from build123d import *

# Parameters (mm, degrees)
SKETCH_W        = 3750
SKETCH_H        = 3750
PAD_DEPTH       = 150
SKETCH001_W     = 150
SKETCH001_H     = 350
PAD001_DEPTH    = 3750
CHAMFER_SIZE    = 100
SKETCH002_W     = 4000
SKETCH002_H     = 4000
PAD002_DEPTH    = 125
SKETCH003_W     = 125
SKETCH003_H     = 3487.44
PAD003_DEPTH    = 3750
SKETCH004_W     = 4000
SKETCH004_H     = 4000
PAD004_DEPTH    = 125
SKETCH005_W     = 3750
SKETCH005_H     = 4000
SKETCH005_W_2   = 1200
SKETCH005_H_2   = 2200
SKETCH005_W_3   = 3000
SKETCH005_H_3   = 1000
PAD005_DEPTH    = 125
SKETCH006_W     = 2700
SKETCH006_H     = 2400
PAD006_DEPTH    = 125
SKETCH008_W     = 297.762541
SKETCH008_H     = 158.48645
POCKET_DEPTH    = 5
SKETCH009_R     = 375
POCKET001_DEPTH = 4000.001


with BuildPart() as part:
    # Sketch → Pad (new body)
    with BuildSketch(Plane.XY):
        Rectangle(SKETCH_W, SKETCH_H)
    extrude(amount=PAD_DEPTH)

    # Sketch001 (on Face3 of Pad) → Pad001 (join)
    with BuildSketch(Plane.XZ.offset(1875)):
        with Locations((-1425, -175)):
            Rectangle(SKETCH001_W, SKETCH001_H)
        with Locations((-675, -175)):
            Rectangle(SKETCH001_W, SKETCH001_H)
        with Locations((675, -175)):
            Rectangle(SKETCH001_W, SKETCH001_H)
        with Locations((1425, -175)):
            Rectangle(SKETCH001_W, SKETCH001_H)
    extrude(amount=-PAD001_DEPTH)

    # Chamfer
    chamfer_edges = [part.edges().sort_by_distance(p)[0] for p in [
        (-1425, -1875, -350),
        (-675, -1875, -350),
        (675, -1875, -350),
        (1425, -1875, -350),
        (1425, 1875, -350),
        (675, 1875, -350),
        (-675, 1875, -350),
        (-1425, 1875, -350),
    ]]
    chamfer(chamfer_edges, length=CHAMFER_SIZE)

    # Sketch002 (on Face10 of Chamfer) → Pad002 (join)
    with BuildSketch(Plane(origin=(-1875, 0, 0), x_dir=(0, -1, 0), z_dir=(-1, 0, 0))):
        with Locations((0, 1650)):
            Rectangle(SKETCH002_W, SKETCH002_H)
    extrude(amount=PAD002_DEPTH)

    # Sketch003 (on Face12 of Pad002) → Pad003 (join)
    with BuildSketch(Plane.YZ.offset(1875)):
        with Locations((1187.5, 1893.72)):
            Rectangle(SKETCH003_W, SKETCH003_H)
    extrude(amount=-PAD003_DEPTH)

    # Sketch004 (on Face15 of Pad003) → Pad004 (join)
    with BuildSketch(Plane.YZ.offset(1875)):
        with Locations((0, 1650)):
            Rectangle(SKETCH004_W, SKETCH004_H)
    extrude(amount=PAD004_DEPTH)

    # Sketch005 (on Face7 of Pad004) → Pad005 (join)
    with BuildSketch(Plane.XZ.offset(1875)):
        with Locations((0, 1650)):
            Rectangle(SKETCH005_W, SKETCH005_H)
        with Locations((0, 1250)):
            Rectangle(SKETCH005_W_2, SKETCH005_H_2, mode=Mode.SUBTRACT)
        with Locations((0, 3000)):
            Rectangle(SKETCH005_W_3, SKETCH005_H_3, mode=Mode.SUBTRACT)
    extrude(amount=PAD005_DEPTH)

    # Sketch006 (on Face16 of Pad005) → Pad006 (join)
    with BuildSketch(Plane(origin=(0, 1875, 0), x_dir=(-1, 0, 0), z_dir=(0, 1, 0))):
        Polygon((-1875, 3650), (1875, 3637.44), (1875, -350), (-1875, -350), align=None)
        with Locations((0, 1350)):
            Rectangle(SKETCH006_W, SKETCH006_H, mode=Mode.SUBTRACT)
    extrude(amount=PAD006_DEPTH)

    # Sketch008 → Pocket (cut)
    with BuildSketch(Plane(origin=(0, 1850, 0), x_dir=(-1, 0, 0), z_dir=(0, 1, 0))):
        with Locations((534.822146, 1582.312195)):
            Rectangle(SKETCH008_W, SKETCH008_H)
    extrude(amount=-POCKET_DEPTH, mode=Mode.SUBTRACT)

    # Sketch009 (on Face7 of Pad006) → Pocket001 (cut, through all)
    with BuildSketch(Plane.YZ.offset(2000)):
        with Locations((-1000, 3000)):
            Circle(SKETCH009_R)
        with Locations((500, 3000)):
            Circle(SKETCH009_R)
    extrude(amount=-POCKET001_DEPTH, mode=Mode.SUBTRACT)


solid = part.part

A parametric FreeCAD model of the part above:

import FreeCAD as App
import Part
import Sketcher


def edges_at(feature, points):
    """Names of the edges that pass closest to the given points."""
    edges = feature.Shape.Edges
    near = lambda p: min(range(len(edges)), key=lambda i: edges[i].distToShape(Part.Vertex(*p))[0])
    return sorted({f"Edge{near(p) + 1}" for p in points})


def add_polygon(sketch, points):
    """Adds a closed chain of lines whose ends are joined by coincident constraints."""
    first, n = sketch.GeometryCount, len(points)
    for a, b in zip(points, points[1:] + points[:1]):
        sketch.addGeometry(Part.LineSegment(App.Vector(*a, 0), App.Vector(*b, 0)), False)
    for i in range(n):
        sketch.addConstraint(Sketcher.Constraint("Coincident", first + i, 2, first + (i + 1) % n, 1))

doc = App.newDocument("Part")
body = doc.addObject("PartDesign::Body", "Body")

# Sketch on XY plane
sketch1 = body.newObject("Sketcher::SketchObject", "Sketch")
sketch1.AttachmentSupport = (doc.getObject("XY_Plane"), [""])
sketch1.MapMode = "FlatFace"
add_polygon(sketch1, [(-1875, 1875), (-1875, -1875), (1875, -1875), (1875, 1875)])  # lines 0-3
sketch1.addConstraint(Sketcher.Constraint("Vertical", 0))
sketch1.addConstraint(Sketcher.Constraint("Horizontal", 1))
sketch1.addConstraint(Sketcher.Constraint("Vertical", 2))
sketch1.addConstraint(Sketcher.Constraint("Horizontal", 3))
sketch1.addConstraint(Sketcher.Constraint("Symmetric", 0, 2, 2, 2, -1, 1))
sketch1.addConstraint(Sketcher.Constraint("Equal", 3, 0))
sketch1.addConstraint(Sketcher.Constraint("DistanceX", 1, 1, 1, 2, 3750.0))
pad1 = body.newObject("PartDesign::Pad", "Pad")
pad1.Profile = sketch1
pad1.Length = 150

# Sketch on XZ plane
sketch2 = body.newObject("Sketcher::SketchObject", "Sketch001")
sketch2.AttachmentSupport = (doc.getObject("XZ_Plane"), [""])
sketch2.MapMode = "FlatFace"
sketch2.AttachmentOffset = App.Placement(App.Vector(0, 0, 1875), App.Rotation())
add_polygon(sketch2, [(-1500, 0), (-1500, -350), (-1350, -350), (-1350, 0)])  # lines 0-3
add_polygon(sketch2, [(-750, 0), (-750, -350), (-600, -350), (-600, 0)])  # lines 4-7
add_polygon(sketch2, [(600, 0), (600, -350), (750, -350), (750, 0)])  # lines 8-11
add_polygon(sketch2, [(1350, 0), (1350, -350), (1500, -350), (1500, 0)])  # lines 12-15
sketch2.addConstraint(Sketcher.Constraint("Vertical", 0))
sketch2.addConstraint(Sketcher.Constraint("Horizontal", 1))
sketch2.addConstraint(Sketcher.Constraint("Vertical", 2))
sketch2.addConstraint(Sketcher.Constraint("Horizontal", 3))
sketch2.addConstraint(Sketcher.Constraint("Vertical", 4))
sketch2.addConstraint(Sketcher.Constraint("Horizontal", 5))
sketch2.addConstraint(Sketcher.Constraint("Vertical", 6))
sketch2.addConstraint(Sketcher.Constraint("Horizontal", 7))
sketch2.addConstraint(Sketcher.Constraint("Vertical", 8))
sketch2.addConstraint(Sketcher.Constraint("Horizontal", 9))
sketch2.addConstraint(Sketcher.Constraint("Vertical", 10))
sketch2.addConstraint(Sketcher.Constraint("Horizontal", 11))
sketch2.addConstraint(Sketcher.Constraint("Vertical", 12))
sketch2.addConstraint(Sketcher.Constraint("Horizontal", 13))
sketch2.addConstraint(Sketcher.Constraint("Vertical", 14))
sketch2.addConstraint(Sketcher.Constraint("Horizontal", 15))
sketch2.addConstraint(Sketcher.Constraint("Symmetric", 7, 2, 10, 2, -1, 1))
sketch2.addConstraint(Sketcher.Constraint("Symmetric", 3, 2, 14, 2, -1, 1))
sketch2.addConstraint(Sketcher.Constraint("Symmetric", 5, 2, 8, 2, -2))
sketch2.addConstraint(Sketcher.Constraint("Symmetric", 1, 2, 12, 2, -2))
sketch2.addConstraint(Sketcher.Constraint("PointOnObject", 2, 2, -1))
sketch2.addConstraint(Sketcher.Constraint("PointOnObject", 6, 2, -1))
sketch2.addConstraint(Sketcher.Constraint("Horizontal", 1, 2, 4, 2))
sketch2.addConstraint(Sketcher.Constraint("Equal", 3, 5))
sketch2.addConstraint(Sketcher.Constraint("DistanceX", 1, 1, 1, 2, 150.0))
sketch2.addConstraint(Sketcher.Constraint("DistanceY", 0, 2, 0, 1, 350.0))
sketch2.addConstraint(Sketcher.Constraint("DistanceX", 0, 2, -1, 1, 1500.0))
sketch2.addConstraint(Sketcher.Constraint("DistanceX", 4, 2, -1, 1, 750.0))
pad2 = body.newObject("PartDesign::Pad", "Pad001")
pad2.Profile = sketch2
pad2.Length = 3750
pad2.Reversed = True
doc.recompute()

chamfer = body.newObject("PartDesign::Chamfer", "Chamfer")
chamfer.Base = (pad2, edges_at(pad2, [
    (-1425, -1875, -350),
    (-675, -1875, -350),
    (675, -1875, -350),
    (1425, -1875, -350),
    (1425, 1875, -350),
    (675, 1875, -350),
    (-675, 1875, -350),
    (-1425, 1875, -350),
]))
chamfer.Size = 100

# Sketch on YZ plane
sketch3 = body.newObject("Sketcher::SketchObject", "Sketch002")
sketch3.AttachmentSupport = (doc.getObject("YZ_Plane"), [""])
sketch3.MapMode = "FlatFace"
sketch3.AttachmentOffset = App.Placement(App.Vector(0, 0, -1875), App.Rotation())
add_polygon(sketch3, [(2000, 3650), (2000, -350), (-2000, -350), (-2000, 3650)])  # lines 0-3
sketch3.addConstraint(Sketcher.Constraint("Vertical", 0))
sketch3.addConstraint(Sketcher.Constraint("Horizontal", 1))
sketch3.addConstraint(Sketcher.Constraint("Vertical", 2))
sketch3.addConstraint(Sketcher.Constraint("Horizontal", 3))
sketch3.addConstraint(Sketcher.Constraint("Equal", 3, 0))
sketch3.addConstraint(Sketcher.Constraint("DistanceX", 1, 2, 1, 1, 4000.0))
sketch3.addConstraint(Sketcher.Constraint("DistanceX", -1, 1, 0, 2, 2000.0))
sketch3.addConstraint(Sketcher.Constraint("DistanceY", 0, 2, -1, 1, 350.0))
pad3 = body.newObject("PartDesign::Pad", "Pad002")
pad3.Profile = sketch3
pad3.Length = 125
pad3.Reversed = True

# Sketch on YZ plane
sketch4 = body.newObject("Sketcher::SketchObject", "Sketch003")
sketch4.AttachmentSupport = (doc.getObject("YZ_Plane"), [""])
sketch4.MapMode = "FlatFace"
sketch4.AttachmentOffset = App.Placement(App.Vector(0, 0, 1875), App.Rotation())
add_polygon(sketch4, [(1125, 3637.44), (1125, 150), (1250, 150), (1250, 3637.44)])  # lines 0-3
sketch4.addConstraint(Sketcher.Constraint("Vertical", 0))
sketch4.addConstraint(Sketcher.Constraint("Horizontal", 1))
sketch4.addConstraint(Sketcher.Constraint("Vertical", 2))
sketch4.addConstraint(Sketcher.Constraint("Horizontal", 3))
sketch4.addConstraint(Sketcher.Constraint("DistanceX", 1, 1, 1, 2, 125.0))
sketch4.addConstraint(Sketcher.Constraint("DistanceX", -1, 1, 0, 2, 1125.0))
sketch4.addConstraint(Sketcher.Constraint("DistanceY", -1, 1, 0, 2, 150.0))
sketch4.addConstraint(Sketcher.Constraint("DistanceY", 0, 2, 0, 1, 3487.44))
pad4 = body.newObject("PartDesign::Pad", "Pad003")
pad4.Profile = sketch4
pad4.Length = 3750
pad4.Reversed = True

# Sketch on YZ plane
sketch5 = body.newObject("Sketcher::SketchObject", "Sketch004")
sketch5.AttachmentSupport = (doc.getObject("YZ_Plane"), [""])
sketch5.MapMode = "FlatFace"
sketch5.AttachmentOffset = App.Placement(App.Vector(0, 0, 1875), App.Rotation())
add_polygon(sketch5, [(-2000, 3650), (-2000, -350), (2000, -350), (2000, 3650)])  # lines 0-3
sketch5.addConstraint(Sketcher.Constraint("Vertical", 0))
sketch5.addConstraint(Sketcher.Constraint("Horizontal", 1))
sketch5.addConstraint(Sketcher.Constraint("Vertical", 2))
sketch5.addConstraint(Sketcher.Constraint("Horizontal", 3))
sketch5.addConstraint(Sketcher.Constraint("Equal", 3, 0))
sketch5.addConstraint(Sketcher.Constraint("DistanceX", 1, 1, 1, 2, 4000.0))
sketch5.addConstraint(Sketcher.Constraint("DistanceX", 0, 2, -1, 1, 2000.0))
sketch5.addConstraint(Sketcher.Constraint("DistanceY", 0, 2, -1, 1, 350.0))
pad5 = body.newObject("PartDesign::Pad", "Pad004")
pad5.Profile = sketch5
pad5.Length = 125

# Sketch on XZ plane
sketch6 = body.newObject("Sketcher::SketchObject", "Sketch005")
sketch6.AttachmentSupport = (doc.getObject("XZ_Plane"), [""])
sketch6.MapMode = "FlatFace"
sketch6.AttachmentOffset = App.Placement(App.Vector(0, 0, 1875), App.Rotation())
add_polygon(sketch6, [(-1875, 3650), (-1875, -350), (1875, -350), (1875, 3650)])  # lines 0-3
add_polygon(sketch6, [(600, 150), (-600, 150), (-600, 2350), (600, 2350)])  # lines 4-7
add_polygon(sketch6, [(1500, 2500), (-1500, 2500), (-1500, 3500), (1500, 3500)])  # lines 8-11
sketch6.addConstraint(Sketcher.Constraint("Vertical", 0))
sketch6.addConstraint(Sketcher.Constraint("Horizontal", 1))
sketch6.addConstraint(Sketcher.Constraint("Vertical", 2))
sketch6.addConstraint(Sketcher.Constraint("Horizontal", 3))
sketch6.addConstraint(Sketcher.Constraint("Horizontal", 4))
sketch6.addConstraint(Sketcher.Constraint("Vertical", 5))
sketch6.addConstraint(Sketcher.Constraint("Horizontal", 6))
sketch6.addConstraint(Sketcher.Constraint("Vertical", 7))
sketch6.addConstraint(Sketcher.Constraint("Horizontal", 8))
sketch6.addConstraint(Sketcher.Constraint("Vertical", 9))
sketch6.addConstraint(Sketcher.Constraint("Horizontal", 10))
sketch6.addConstraint(Sketcher.Constraint("Vertical", 11))
sketch6.addConstraint(Sketcher.Constraint("DistanceX", 1, 1, 1, 2, 3750.0))
sketch6.addConstraint(Sketcher.Constraint("DistanceX", 4, 2, 4, 1, 1200.0))
sketch6.addConstraint(Sketcher.Constraint("DistanceX", 8, 2, 8, 1, 3000.0))
sketch6.addConstraint(Sketcher.Constraint("DistanceY", 0, 2, 0, 1, 4000.0))
sketch6.addConstraint(Sketcher.Constraint("DistanceY", 5, 1, 5, 2, 2200.0))
sketch6.addConstraint(Sketcher.Constraint("DistanceY", 9, 1, 9, 2, 1000.0))
sketch6.addConstraint(Sketcher.Constraint("DistanceX", 0, 2, -1, 1, 1875.0))
sketch6.addConstraint(Sketcher.Constraint("DistanceY", 0, 2, -1, 1, 350.0))
sketch6.addConstraint(Sketcher.Constraint("DistanceX", 4, 2, -1, 1, 600.0))
sketch6.addConstraint(Sketcher.Constraint("DistanceY", -1, 1, 4, 2, 150.0))
sketch6.addConstraint(Sketcher.Constraint("DistanceX", 8, 2, -1, 1, 1500.0))
sketch6.addConstraint(Sketcher.Constraint("DistanceY", -1, 1, 8, 2, 2500.0))
pad6 = body.newObject("PartDesign::Pad", "Pad005")
pad6.Profile = sketch6
pad6.Length = 125

# Sketch on XZ plane
sketch7 = body.newObject("Sketcher::SketchObject", "Sketch006")
sketch7.AttachmentSupport = (doc.getObject("XZ_Plane"), [""])
sketch7.MapMode = "FlatFace"
sketch7.AttachmentOffset = App.Placement(App.Vector(0, 0, -1875), App.Rotation())
add_polygon(sketch7, [(-1875, 3637.44), (1875, 3650), (1875, -350), (-1875, -350)])  # lines 0-3
add_polygon(sketch7, [(1350, 150), (1350, 2550), (-1350, 2550), (-1350, 150)])  # lines 4-7
sketch7.addConstraint(Sketcher.Constraint("Vertical", 1))
sketch7.addConstraint(Sketcher.Constraint("Horizontal", 2))
sketch7.addConstraint(Sketcher.Constraint("Vertical", 3))
sketch7.addConstraint(Sketcher.Constraint("Vertical", 4))
sketch7.addConstraint(Sketcher.Constraint("Horizontal", 5))
sketch7.addConstraint(Sketcher.Constraint("Vertical", 6))
sketch7.addConstraint(Sketcher.Constraint("Horizontal", 7))
sketch7.addConstraint(Sketcher.Constraint("DistanceX", 2, 2, 2, 1, 3750.0))
sketch7.addConstraint(Sketcher.Constraint("DistanceX", 5, 2, 5, 1, 2700.0))
sketch7.addConstraint(Sketcher.Constraint("DistanceY", 1, 2, 1, 1, 4000.0))
sketch7.addConstraint(Sketcher.Constraint("DistanceY", 4, 1, 4, 2, 2400.0))
sketch7.addConstraint(Sketcher.Constraint("DistanceX", -1, 1, 0, 2, 1875.0))
sketch7.addConstraint(Sketcher.Constraint("DistanceY", -1, 1, 0, 2, 3650.0))
sketch7.addConstraint(Sketcher.Constraint("DistanceX", -1, 1, 4, 2, 1350.0))
sketch7.addConstraint(Sketcher.Constraint("DistanceY", -1, 1, 4, 2, 2550.0))
sketch7.addConstraint(Sketcher.Constraint("DistanceY", 3, 1, 3, 2, 3987.44))
pad7 = body.newObject("PartDesign::Pad", "Pad006")
pad7.Profile = sketch7
pad7.Length = 125
pad7.Reversed = True

# Sketch on XZ plane
sketch8 = body.newObject("Sketcher::SketchObject", "Sketch007")
sketch8.AttachmentSupport = (doc.getObject("XZ_Plane"), [""])
sketch8.MapMode = "FlatFace"
sketch8.AttachmentOffset = App.Placement(App.Vector(0, 0, -1850), App.Rotation())
add_polygon(sketch8, [(-385.940876, 1661.55542), (-385.940876, 1503.06897), (-683.703417, 1503.06897), (-683.703417, 1661.55542)])  # lines 0-3
sketch8.addConstraint(Sketcher.Constraint("Vertical", 0))
sketch8.addConstraint(Sketcher.Constraint("Horizontal", 1))
sketch8.addConstraint(Sketcher.Constraint("Vertical", 2))
sketch8.addConstraint(Sketcher.Constraint("Horizontal", 3))
sketch8.addConstraint(Sketcher.Constraint("DistanceX", 1, 2, 1, 1, 297.762541))
sketch8.addConstraint(Sketcher.Constraint("DistanceY", 0, 2, 0, 1, 158.48645))
sketch8.addConstraint(Sketcher.Constraint("DistanceY", -1, 1, 0, 2, 1503.06897))
sketch8.addConstraint(Sketcher.Constraint("DistanceX", 0, 2, -1, 1, 385.940876))
pocket1 = body.newObject("PartDesign::Pocket", "Pocket")
pocket1.Profile = sketch8
pocket1.Length = 5
pocket1.Reversed = True

# Sketch on YZ plane
sketch9 = body.newObject("Sketcher::SketchObject", "Sketch008")
sketch9.AttachmentSupport = (doc.getObject("YZ_Plane"), [""])
sketch9.MapMode = "FlatFace"
sketch9.AttachmentOffset = App.Placement(App.Vector(0, 0, 2000), App.Rotation())
sketch9.addGeometry(Part.Circle(App.Vector(-1000, 3000, 0), App.Vector(0, 0, 1), 375), False)
sketch9.addGeometry(Part.Circle(App.Vector(500, 3000, 0), App.Vector(0, 0, 1), 375), False)
sketch9.addConstraint(Sketcher.Constraint("Equal", 0, 1))
sketch9.addConstraint(Sketcher.Constraint("Horizontal", 0, 3, 1, 3))
sketch9.addConstraint(Sketcher.Constraint("Diameter", 0, 750.0))
sketch9.addConstraint(Sketcher.Constraint("DistanceX", 0, 3, -1, 1, 1000.0))
sketch9.addConstraint(Sketcher.Constraint("DistanceY", -1, 1, 0, 3, 3000.0))
sketch9.addConstraint(Sketcher.Constraint("DistanceX", -1, 1, 1, 3, 500.0))
pocket2 = body.newObject("PartDesign::Pocket", "Pocket001")
pocket2.Profile = sketch9
pocket2.Type = "ThroughAll"

doc.recompute()
